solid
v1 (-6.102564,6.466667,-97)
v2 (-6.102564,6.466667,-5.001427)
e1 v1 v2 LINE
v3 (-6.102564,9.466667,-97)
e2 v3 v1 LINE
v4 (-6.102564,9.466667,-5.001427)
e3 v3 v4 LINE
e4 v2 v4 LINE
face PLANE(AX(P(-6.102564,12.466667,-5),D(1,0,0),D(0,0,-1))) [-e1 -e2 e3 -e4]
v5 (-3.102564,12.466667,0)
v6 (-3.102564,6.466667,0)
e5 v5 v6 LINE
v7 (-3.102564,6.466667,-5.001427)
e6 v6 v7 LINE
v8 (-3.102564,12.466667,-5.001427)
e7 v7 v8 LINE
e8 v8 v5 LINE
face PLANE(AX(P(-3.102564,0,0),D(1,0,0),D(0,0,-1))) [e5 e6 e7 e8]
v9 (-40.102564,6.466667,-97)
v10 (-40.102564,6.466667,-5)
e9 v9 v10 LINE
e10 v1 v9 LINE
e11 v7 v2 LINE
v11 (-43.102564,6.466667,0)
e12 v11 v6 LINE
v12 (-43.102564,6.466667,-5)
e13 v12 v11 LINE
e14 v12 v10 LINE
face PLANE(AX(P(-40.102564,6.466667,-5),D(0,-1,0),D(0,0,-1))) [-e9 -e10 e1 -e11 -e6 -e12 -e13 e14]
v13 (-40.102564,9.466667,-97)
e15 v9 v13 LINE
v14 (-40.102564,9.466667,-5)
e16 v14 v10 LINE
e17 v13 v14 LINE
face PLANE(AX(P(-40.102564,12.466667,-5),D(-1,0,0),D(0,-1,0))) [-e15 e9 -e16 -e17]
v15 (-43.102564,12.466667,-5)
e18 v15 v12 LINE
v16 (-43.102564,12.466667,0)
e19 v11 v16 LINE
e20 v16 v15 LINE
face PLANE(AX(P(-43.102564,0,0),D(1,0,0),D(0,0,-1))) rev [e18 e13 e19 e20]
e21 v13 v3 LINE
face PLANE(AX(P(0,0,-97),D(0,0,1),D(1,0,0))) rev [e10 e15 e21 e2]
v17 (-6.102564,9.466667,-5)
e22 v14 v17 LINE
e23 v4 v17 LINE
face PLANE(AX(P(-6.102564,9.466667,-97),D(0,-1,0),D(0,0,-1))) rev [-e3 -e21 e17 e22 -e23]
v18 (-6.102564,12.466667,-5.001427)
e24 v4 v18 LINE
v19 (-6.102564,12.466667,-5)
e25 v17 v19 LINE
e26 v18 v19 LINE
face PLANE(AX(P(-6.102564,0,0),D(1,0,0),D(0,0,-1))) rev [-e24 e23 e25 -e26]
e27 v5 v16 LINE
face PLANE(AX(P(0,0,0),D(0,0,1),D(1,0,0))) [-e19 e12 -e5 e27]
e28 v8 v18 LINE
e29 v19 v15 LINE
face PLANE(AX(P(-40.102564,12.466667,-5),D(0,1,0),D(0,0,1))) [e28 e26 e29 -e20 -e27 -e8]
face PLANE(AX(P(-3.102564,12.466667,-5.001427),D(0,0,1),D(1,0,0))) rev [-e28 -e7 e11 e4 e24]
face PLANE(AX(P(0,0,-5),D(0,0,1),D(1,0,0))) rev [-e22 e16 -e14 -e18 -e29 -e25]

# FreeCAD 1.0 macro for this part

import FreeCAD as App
import Part
import Sketcher
from FreeCAD import Vector
Q = App.Units.Quantity


def add_polygon(sketch, points):
    """Adds a closed chain of lines whose ends are joined by coincident constraints."""
    first, n = sketch.GeometryCount, len(points)
    for a, b in zip(points, points[1:] + points[:1]):
        sketch.addGeometry(Part.LineSegment(App.Vector(*a, 0), App.Vector(*b, 0)), False)
    for i in range(n):
        sketch.addConstraint(Sketcher.Constraint("Coincident", first + i, 2, first + (i + 1) % n, 1))

doc = App.newDocument("Part")
params = doc.addObject("Spreadsheet::Sheet", "Params")
for row, (alias, value) in enumerate([
    ("sketch1_width", "34 mm"),
    ("sketch1_height", "6 mm"),
    ("pad1_length", "5 mm"),
    ("sketch2_width", "34 mm"),
    ("sketch2_height", "3 mm"),
    ("pad2_length", "92 mm"),
    ("sketch3_width", "6 mm"),
    ("sketch3_height", "5 mm"),
    ("pad3_length", "3 mm"),
    ("sketch4_width", "6 mm"),
    ("pad4_length", "3 mm"),
], start=1):
    params.set(f"A{row}", alias)
    params.set(f"B{row}", "=" + value)
    params.setAlias(f"B{row}", alias)

body = doc.addObject("PartDesign::Body", "Body")

# Sketch on XY plane
sketch1 = body.newObject("Sketcher::SketchObject", "Sketch")
sketch1.AttachmentSupport = (doc.getObject("XY_Plane"), [""])
sketch1.MapMode = "FlatFace"
add_polygon(sketch1, [(-40, 12), (-40, 6), (-6, 6), (-6, 12)])  # lines 0-3
sketch1.addConstraint([
    Sketcher.Constraint("Vertical", 0),
    Sketcher.Constraint("Horizontal", 1),
    Sketcher.Constraint("Vertical", 2),
    Sketcher.Constraint("Horizontal", 3),
    Sketcher.Constraint("DistanceX", 1, 1, 1, 2, Q("34 mm")),
    Sketcher.Constraint("DistanceY", 0, 2, 0, 1, Q("6 mm")),
    Sketcher.Constraint("DistanceX", 0, 2, -1, 1, Q("40.102564 mm")),
    Sketcher.Constraint("DistanceY", -1, 1, 0, 2, Q("6.466667 mm")),
])
sketch1.setExpression("Constraints[8]", "Params.sketch1_width")
sketch1.setExpression("Constraints[9]", "Params.sketch1_height")
pad1 = body.newObject("PartDesign::Pad", "Pad")
pad1.Profile = sketch1
pad1.setExpression("Length", "Params.pad1_length")
pad1.Reversed = True

# Sketch on XY plane
sketch2 = body.newObject("Sketcher::SketchObject", "Sketch001")
sketch2.AttachmentSupport = (doc.getObject("XY_Plane"), [""])
sketch2.MapMode = "FlatFace"
sketch2.AttachmentOffset = App.Placement(Vector(0, 0, -5), App.Rotation())
add_polygon(sketch2, [(-6.1, 9.5), (-6.1, 6.5), (-40.1, 6.5), (-40.1, 9.5)])  # lines 0-3
sketch2.addConstraint([
    Sketcher.Constraint("Vertical", 0),
    Sketcher.Constraint("Horizontal", 1),
    Sketcher.Constraint("Vertical", 2),
    Sketcher.Constraint("Horizontal", 3),
    Sketcher.Constraint("DistanceX", 1, 2, 1, 1, Q("34 mm")),
    Sketcher.Constraint("DistanceY", 0, 2, 0, 1, Q("3 mm")),
    Sketcher.Constraint("DistanceX", 0, 2, -1, 1, Q("6.102564 mm")),
    Sketcher.Constraint("DistanceY", -1, 1, 0, 2, Q("6.466667 mm")),
])
sketch2.setExpression("Constraints[8]", "Params.sketch2_width")
sketch2.setExpression("Constraints[9]", "Params.sketch2_height")
pad2 = body.newObject("PartDesign::Pad", "Pad001")
pad2.Profile = sketch2
pad2.setExpression("Length", "Params.pad2_length")
pad2.Reversed = True

# Sketch on YZ plane
sketch3 = body.newObject("Sketcher::SketchObject", "Sketch002")
sketch3.AttachmentSupport = (doc.getObject("YZ_Plane"), [""])
sketch3.MapMode = "FlatFace"
sketch3.AttachmentOffset = App.Placement(Vector(0, 0, -40.102564), App.Rotation())
add_polygon(sketch3, [(6, -5), (6, 0), (12, 0), (12, -5)])  # lines 0-3
sketch3.addConstraint([
    Sketcher.Constraint("Vertical", 0),
    Sketcher.Constraint("Horizontal", 1),
    Sketcher.Constraint("Vertical", 2),
    Sketcher.Constraint("Horizontal", 3),
    Sketcher.Constraint("PointOnObject", 0, 2, -1),
    Sketcher.Constraint("DistanceX", 1, 1, 1, 2, Q("6 mm")),
    Sketcher.Constraint("DistanceY", 0, 1, 0, 2, Q("5 mm")),
    Sketcher.Constraint("DistanceX", -1, 1, 0, 2, Q("6.466667 mm")),
])
sketch3.setExpression("Constraints[9]", "Params.sketch3_width")
sketch3.setExpression("Constraints[10]", "Params.sketch3_height")
pad3 = body.newObject("PartDesign::Pad", "Pad002")
pad3.Profile = sketch3
pad3.setExpression("Length", "Params.pad3_length")
pad3.Reversed = True

# Sketch on YZ plane
sketch4 = body.newObject("Sketcher::SketchObject", "Sketch003")
sketch4.AttachmentSupport = (doc.getObject("YZ_Plane"), [""])
sketch4.MapMode = "FlatFace"
sketch4.AttachmentOffset = App.Placement(Vector(0, 0, -6.102564), App.Rotation())
add_polygon(sketch4, [(12, 0), (6, 0), (6, -5), (12, -5)])  # lines 0-3
sketch4.addConstraint([
    Sketcher.Constraint("Horizontal", 0),
    Sketcher.Constraint("Vertical", 1),
    Sketcher.Constraint("Horizontal", 2),
    Sketcher.Constraint("Vertical", 3),
    Sketcher.Constraint("PointOnObject", 0, 2, -1),
    Sketcher.Constraint("DistanceX", 0, 2, 0, 1, Q("6 mm")),
    Sketcher.Constraint("DistanceY", 1, 2, 1, 1, Q("5.001427 mm")),
    Sketcher.Constraint("DistanceX", -1, 1, 0, 2, Q("6.466667 mm")),
])
sketch4.setExpression("Constraints[9]", "Params.sketch4_width")
pad4 = body.newObject("PartDesign::Pad", "Pad003")
pad4.Profile = sketch4
pad4.setExpression("Length", "Params.pad4_length")

doc.recompute()
